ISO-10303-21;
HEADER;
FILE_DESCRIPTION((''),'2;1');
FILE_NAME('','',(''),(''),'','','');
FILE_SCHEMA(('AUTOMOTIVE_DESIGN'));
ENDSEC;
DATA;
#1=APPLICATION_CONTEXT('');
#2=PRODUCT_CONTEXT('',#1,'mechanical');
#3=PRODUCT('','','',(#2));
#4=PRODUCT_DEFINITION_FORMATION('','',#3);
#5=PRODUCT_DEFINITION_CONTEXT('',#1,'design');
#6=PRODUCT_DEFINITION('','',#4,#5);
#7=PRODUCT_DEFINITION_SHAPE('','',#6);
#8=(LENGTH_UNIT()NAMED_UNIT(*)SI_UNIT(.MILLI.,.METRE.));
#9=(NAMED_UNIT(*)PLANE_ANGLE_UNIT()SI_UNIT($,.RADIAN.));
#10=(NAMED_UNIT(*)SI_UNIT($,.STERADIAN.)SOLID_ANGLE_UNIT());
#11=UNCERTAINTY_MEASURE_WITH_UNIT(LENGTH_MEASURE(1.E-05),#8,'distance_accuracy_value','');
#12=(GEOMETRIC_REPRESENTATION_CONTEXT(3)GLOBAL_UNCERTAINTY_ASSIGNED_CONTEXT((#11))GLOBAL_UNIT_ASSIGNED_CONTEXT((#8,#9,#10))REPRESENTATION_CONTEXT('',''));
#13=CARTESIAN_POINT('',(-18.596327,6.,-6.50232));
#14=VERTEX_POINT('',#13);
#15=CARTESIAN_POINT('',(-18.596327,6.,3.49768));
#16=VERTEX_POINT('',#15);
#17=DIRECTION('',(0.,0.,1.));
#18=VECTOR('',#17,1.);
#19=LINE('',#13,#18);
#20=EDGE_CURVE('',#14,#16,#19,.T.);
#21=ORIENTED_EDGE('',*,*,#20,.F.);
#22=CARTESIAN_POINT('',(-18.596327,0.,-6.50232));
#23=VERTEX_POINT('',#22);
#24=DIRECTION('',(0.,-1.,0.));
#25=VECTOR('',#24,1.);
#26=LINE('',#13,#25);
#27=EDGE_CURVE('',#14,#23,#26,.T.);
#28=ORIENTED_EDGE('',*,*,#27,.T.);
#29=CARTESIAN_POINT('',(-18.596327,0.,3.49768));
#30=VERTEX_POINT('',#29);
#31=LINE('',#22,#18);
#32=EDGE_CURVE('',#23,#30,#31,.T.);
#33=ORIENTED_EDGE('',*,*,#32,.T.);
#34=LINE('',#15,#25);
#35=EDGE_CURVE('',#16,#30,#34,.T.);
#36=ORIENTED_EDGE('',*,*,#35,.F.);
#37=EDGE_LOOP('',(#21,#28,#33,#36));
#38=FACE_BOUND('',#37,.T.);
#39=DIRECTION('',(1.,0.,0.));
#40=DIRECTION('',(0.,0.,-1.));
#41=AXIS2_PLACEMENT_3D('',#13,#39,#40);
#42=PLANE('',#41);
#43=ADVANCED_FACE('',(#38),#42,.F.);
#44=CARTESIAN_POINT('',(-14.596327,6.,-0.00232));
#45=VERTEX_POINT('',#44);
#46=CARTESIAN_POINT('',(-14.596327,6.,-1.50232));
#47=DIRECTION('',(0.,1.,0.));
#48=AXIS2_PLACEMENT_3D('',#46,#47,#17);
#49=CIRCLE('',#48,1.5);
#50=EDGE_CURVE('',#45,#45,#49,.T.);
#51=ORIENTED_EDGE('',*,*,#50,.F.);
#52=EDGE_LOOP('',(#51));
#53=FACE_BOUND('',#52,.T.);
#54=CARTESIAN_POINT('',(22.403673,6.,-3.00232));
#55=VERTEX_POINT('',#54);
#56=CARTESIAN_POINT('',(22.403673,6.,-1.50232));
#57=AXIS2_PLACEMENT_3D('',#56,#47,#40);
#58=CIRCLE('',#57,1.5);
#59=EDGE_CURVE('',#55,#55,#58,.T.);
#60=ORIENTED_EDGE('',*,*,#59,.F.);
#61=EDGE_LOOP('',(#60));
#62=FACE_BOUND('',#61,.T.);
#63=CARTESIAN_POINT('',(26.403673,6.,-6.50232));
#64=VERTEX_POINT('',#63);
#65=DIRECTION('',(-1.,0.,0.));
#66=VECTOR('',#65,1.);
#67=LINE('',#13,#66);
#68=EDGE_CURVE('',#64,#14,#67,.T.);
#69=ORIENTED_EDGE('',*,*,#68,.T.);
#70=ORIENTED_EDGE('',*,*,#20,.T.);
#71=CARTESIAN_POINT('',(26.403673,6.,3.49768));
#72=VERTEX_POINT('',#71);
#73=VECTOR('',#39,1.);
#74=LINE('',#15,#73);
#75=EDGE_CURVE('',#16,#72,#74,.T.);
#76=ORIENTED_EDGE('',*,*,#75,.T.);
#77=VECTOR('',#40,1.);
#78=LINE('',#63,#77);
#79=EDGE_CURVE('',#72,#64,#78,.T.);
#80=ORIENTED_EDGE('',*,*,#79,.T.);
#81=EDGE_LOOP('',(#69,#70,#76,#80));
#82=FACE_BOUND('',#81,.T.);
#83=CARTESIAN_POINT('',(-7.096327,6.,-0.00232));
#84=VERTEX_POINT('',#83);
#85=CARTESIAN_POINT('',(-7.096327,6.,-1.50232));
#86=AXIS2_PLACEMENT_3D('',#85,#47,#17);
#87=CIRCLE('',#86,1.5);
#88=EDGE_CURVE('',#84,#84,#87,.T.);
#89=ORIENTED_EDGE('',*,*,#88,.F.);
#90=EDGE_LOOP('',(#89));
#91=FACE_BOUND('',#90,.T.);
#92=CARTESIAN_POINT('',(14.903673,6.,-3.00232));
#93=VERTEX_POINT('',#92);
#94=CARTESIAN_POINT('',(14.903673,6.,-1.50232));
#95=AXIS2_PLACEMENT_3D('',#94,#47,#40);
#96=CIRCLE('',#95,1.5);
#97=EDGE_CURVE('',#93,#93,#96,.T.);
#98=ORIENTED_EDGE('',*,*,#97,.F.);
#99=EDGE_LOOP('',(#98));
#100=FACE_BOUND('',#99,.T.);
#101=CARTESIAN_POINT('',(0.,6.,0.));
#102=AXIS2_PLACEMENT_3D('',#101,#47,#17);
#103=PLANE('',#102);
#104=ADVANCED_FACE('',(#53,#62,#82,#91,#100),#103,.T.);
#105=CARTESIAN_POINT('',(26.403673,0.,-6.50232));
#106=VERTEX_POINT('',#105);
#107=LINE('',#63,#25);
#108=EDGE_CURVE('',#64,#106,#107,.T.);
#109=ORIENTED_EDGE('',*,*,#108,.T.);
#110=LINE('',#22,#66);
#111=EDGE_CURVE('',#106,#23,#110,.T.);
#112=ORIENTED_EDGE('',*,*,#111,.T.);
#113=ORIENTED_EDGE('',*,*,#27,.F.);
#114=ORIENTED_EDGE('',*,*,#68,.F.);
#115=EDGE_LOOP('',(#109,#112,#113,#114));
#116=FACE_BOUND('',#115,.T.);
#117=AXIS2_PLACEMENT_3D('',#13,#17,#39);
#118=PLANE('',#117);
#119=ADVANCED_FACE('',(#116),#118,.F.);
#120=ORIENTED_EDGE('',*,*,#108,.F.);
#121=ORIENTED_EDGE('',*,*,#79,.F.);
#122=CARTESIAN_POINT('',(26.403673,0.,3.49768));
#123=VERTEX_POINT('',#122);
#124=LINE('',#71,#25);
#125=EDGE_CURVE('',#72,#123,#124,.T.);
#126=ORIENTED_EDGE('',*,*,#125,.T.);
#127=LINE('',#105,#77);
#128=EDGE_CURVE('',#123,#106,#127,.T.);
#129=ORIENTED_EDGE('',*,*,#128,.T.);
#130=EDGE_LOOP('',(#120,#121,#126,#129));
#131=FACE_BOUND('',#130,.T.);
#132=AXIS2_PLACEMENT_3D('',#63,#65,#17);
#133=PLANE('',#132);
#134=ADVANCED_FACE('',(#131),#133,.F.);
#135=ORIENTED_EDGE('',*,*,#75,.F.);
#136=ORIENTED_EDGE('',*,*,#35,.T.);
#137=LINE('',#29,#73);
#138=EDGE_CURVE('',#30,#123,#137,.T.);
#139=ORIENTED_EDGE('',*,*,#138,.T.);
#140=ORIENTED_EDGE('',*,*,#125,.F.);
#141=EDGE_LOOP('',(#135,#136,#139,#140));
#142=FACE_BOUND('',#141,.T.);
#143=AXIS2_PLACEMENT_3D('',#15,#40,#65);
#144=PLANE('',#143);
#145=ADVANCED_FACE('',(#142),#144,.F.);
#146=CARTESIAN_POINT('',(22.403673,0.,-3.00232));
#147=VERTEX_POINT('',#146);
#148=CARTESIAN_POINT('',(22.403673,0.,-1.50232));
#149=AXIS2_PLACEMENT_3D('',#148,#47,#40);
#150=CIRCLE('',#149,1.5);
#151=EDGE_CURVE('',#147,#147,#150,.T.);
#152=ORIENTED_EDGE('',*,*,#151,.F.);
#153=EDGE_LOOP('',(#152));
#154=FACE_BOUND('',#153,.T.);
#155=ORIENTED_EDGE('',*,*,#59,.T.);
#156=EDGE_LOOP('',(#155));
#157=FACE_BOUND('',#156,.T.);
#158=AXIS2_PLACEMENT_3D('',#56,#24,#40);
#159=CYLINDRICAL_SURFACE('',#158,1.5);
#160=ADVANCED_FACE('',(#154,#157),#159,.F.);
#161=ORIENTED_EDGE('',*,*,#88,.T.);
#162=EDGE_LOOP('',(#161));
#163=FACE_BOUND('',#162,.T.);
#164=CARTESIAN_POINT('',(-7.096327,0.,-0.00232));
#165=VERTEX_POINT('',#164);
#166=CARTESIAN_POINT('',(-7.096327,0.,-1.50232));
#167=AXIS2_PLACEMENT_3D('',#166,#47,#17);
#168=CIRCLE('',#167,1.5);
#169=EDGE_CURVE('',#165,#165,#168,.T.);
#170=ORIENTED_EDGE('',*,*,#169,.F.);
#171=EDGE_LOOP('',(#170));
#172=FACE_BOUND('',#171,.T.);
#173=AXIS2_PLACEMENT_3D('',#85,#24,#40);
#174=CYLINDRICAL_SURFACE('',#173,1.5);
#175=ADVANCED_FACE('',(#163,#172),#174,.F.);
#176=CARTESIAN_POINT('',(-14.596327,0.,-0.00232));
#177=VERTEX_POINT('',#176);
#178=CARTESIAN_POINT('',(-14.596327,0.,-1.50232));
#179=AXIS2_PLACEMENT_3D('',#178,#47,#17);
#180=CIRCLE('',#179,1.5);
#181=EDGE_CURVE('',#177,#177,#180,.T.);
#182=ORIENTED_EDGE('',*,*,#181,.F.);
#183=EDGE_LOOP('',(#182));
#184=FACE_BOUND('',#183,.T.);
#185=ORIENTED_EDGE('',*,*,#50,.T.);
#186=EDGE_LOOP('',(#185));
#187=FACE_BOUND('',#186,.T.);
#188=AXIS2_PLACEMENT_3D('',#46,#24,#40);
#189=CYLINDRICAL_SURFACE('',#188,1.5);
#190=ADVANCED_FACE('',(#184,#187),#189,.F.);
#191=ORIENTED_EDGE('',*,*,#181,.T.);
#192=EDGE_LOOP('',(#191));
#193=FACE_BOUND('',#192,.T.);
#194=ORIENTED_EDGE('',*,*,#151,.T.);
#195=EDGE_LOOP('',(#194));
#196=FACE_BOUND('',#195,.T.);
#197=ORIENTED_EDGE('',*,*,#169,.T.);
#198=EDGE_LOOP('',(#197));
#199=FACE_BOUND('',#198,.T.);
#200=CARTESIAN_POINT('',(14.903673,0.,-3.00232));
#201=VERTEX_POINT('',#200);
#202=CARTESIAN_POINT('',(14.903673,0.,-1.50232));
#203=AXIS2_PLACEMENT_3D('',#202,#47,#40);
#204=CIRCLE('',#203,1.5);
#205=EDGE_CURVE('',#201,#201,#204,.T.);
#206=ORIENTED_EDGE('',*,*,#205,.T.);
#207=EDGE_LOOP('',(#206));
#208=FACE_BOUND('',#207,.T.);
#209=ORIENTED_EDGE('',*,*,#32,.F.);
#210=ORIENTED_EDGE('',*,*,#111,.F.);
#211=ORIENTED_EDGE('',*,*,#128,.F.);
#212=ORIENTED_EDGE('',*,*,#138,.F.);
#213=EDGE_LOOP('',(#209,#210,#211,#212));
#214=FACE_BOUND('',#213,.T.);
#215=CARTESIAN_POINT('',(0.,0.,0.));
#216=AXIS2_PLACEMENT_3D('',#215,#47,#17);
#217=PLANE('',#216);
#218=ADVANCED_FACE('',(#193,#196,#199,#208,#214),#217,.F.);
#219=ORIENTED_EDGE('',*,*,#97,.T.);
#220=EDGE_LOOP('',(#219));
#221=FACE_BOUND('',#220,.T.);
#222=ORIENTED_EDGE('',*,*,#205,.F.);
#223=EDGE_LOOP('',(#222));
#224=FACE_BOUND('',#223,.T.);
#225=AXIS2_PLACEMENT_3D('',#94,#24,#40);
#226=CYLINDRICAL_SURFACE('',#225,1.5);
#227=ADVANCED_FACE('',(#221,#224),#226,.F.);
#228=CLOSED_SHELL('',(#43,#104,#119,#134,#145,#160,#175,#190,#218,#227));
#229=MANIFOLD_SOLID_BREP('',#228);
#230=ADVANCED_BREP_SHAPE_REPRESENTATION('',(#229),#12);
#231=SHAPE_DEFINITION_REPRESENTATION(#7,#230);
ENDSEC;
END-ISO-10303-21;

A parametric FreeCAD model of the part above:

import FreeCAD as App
import Part
import Sketcher
from FreeCAD import Vector
Q = App.Units.Quantity


def add_polygon(sketch, points):
    """Adds a closed chain of lines whose ends are joined by coincident constraints."""
    first, n = sketch.GeometryCount, len(points)
    for a, b in zip(points, points[1:] + points[:1]):
        sketch.addGeometry(Part.LineSegment(App.Vector(*a, 0), App.Vector(*b, 0)), False)
    for i in range(n):
        sketch.addConstraint(Sketcher.Constraint("Coincident", first + i, 2, first + (i + 1) % n, 1))

doc = App.newDocument("Part")
body = doc.addObject("PartDesign::Body", "Body")

sketch1 = doc.addObject("Sketcher::SketchObject", "Sketch")
body.addObject(sketch1)
sketch1.AttachmentSupport = (doc.XZ_Plane, [""])
sketch1.MapMode = "FlatFace"
add_polygon(sketch1, [(-18.6, -6.5), (-18.6, 3.5), (26.4, 3.5), (26.4, -6.5)])
sketch1.addGeometry(Part.Circle(Vector(-14.6, -1.5, 0), Vector(0, 0, 1), 1.5), False)
sketch1.addGeometry(Part.Circle(Vector(-7.1, -1.5, 0), Vector(0, 0, 1), 1.5), False)
sketch1.addGeometry(Part.Circle(Vector(14.9, -1.5, 0), Vector(0, 0, 1), 1.5), False)
sketch1.addGeometry(Part.Circle(Vector(22.4, -1.5, 0), Vector(0, 0, 1), 1.5), False)
sketch1.addConstraint(Sketcher.Constraint("Vertical", 0))
sketch1.addConstraint(Sketcher.Constraint("Horizontal", 1))
sketch1.addConstraint(Sketcher.Constraint("Vertical", 2))
sketch1.addConstraint(Sketcher.Constraint("Horizontal", 3))
sketch1.addConstraint(Sketcher.Constraint("Equal", 4, 5))
sketch1.addConstraint(Sketcher.Constraint("Equal", 5, 6))
sketch1.addConstraint(Sketcher.Constraint("Equal", 6, 7))
sketch1.addConstraint(Sketcher.Constraint("Horizontal", 4, 3, 5, 3))
sketch1.addConstraint(Sketcher.Constraint("Horizontal", 5, 3, 6, 3))
sketch1.addConstraint(Sketcher.Constraint("Horizontal", 6, 3, 7, 3))
sketch1.addConstraint(Sketcher.Constraint("Diameter", 4, Q("3 mm")))
sketch1.addConstraint(Sketcher.Constraint("DistanceX", 1, 1, 1, 2, Q("45 mm")))
sketch1.addConstraint(Sketcher.Constraint("DistanceY", 0, 1, 0, 2, Q("10 mm")))
sketch1.addConstraint(Sketcher.Constraint("DistanceX", 5, 3, 6, 3, Q("22 mm")))
sketch1.addConstraint(Sketcher.Constraint("DistanceX", 4, 3, 7, 3, Q("37 mm")))
sketch1.addConstraint(Sketcher.Constraint("DistanceX", 0, 2, 4, 3, Q("4 mm")))
sketch1.addConstraint(Sketcher.Constraint("DistanceY", 4, 3, 0, 2, Q("5 mm")))
sketch1.addConstraint(Sketcher.Constraint("DistanceX", 4, 3, 5, 3, Q("7.5 mm")))
sketch1.addConstraint(Sketcher.Constraint("DistanceY", 4, 3, -1, 1, Q("1.50232 mm")))
sketch1.addConstraint(Sketcher.Constraint("DistanceX", 4, 3, -1, 1, Q("14.596327 mm")))
pad1 = doc.addObject("PartDesign::Pad", "Pad")
body.addObject(pad1)
pad1.Profile = sketch1
pad1.Length = 6
pad1.Reversed = True

doc.recompute()
